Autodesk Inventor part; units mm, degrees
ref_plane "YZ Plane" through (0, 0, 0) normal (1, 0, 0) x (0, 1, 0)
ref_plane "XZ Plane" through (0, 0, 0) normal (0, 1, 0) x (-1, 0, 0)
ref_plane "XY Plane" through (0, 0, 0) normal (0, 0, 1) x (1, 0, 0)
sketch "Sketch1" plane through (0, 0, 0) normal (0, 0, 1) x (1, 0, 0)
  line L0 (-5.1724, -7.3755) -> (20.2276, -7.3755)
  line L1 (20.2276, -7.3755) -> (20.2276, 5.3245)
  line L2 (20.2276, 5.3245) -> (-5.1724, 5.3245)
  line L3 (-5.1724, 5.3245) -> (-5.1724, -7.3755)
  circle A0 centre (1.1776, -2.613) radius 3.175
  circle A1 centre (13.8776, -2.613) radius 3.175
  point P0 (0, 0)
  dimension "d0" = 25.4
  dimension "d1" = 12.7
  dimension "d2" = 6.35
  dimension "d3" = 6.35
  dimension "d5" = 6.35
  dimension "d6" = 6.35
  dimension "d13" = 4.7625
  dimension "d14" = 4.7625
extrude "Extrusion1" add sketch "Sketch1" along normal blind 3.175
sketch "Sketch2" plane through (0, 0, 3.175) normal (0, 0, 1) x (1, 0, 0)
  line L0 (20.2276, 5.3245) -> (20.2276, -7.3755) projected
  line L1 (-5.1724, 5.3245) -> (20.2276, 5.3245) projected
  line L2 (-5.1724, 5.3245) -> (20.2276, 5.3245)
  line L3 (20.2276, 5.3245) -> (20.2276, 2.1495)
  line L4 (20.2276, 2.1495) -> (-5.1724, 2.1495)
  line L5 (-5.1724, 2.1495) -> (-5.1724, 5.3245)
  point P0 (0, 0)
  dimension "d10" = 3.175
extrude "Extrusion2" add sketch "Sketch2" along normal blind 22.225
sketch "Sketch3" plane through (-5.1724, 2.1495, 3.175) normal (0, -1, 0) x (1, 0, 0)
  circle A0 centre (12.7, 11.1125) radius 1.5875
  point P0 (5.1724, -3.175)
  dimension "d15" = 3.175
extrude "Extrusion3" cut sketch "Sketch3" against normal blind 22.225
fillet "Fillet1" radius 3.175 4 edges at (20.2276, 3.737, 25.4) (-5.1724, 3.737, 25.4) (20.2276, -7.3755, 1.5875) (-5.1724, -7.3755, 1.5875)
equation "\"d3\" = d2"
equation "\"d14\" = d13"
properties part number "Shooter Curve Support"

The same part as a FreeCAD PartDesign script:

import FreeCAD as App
import Part
import Sketcher

V = App.Vector
Q = App.Units.Quantity


def edges_at(feature, points):
    """Names of the edges that pass closest to the given points."""
    edges = feature.Shape.Edges
    near = lambda p: min(range(len(edges)), key=lambda i: edges[i].distToShape(Part.Vertex(*p))[0])
    return sorted({f"Edge{near(p) + 1}" for p in points})

doc = App.newDocument("Part")
body = doc.addObject("PartDesign::Body", "Body")

# Sketch on XY plane
sketch1 = body.newObject("Sketcher::SketchObject", "Sketch")
sketch1.AttachmentSupport = (doc.getObject("XY_Plane"), [""])
sketch1.MapMode = "FlatFace"
sketch1.addGeometry([
    Part.LineSegment(V(-5.2, 5.3, 0), V(-5.2, -7.4, 0)),  # 0
    Part.LineSegment(V(-5.2, -7.4, 0), V(20.2, -7.4, 0)),  # 1
    Part.LineSegment(V(20.2, -7.4, 0), V(20.2, 5.3, 0)),  # 2
    Part.LineSegment(V(20.2, 5.3, 0), V(-5.2, 5.3, 0)),  # 3
    Part.Circle(V(1.2, -2.6, 0), V(0, 0, 1), 3.2),  # 4
    Part.Circle(V(13.9, -2.6, 0), V(0, 0, 1), 3.2),  # 5
], False)
sketch1.addConstraint([
    Sketcher.Constraint("Coincident", 0, 2, 1, 1),
    Sketcher.Constraint("Coincident", 1, 2, 2, 1),
    Sketcher.Constraint("Coincident", 2, 2, 3, 1),
    Sketcher.Constraint("Coincident", 3, 2, 0, 1),
    Sketcher.Constraint("Vertical", 0),
    Sketcher.Constraint("Horizontal", 1),
    Sketcher.Constraint("Vertical", 2),
    Sketcher.Constraint("Horizontal", 3),
    Sketcher.Constraint("Equal", 4, 5),
    Sketcher.Constraint("Horizontal", 4, 3, 5, 3),
    Sketcher.Constraint("Diameter", 4, Q("0.25 in")),
    Sketcher.Constraint("DistanceX", 1, 1, 1, 2, Q("1 in")),
    Sketcher.Constraint("DistanceY", 0, 2, 0, 1, Q("0.5 in")),
    Sketcher.Constraint("DistanceX", 4, 3, 5, 3, Q("0.5 in")),
    Sketcher.Constraint("DistanceX", 0, 2, 4, 3, Q("0.25 in")),
    Sketcher.Constraint("DistanceY", 0, 2, 4, 3, Q("0.1875 in")),
    Sketcher.Constraint("DistanceX", -1, 1, 4, 3, 1.1776),
    Sketcher.Constraint("DistanceY", 4, 3, -1, 1, 2.613),
])
pad1 = body.newObject("PartDesign::Pad", "Pad")
pad1.Profile = sketch1
pad1.Length = Q("0.125 in")

# Sketch on XY plane
sketch2 = body.newObject("Sketcher::SketchObject", "Sketch001")
sketch2.AttachmentSupport = (doc.getObject("XY_Plane"), [""])
sketch2.MapMode = "FlatFace"
sketch2.AttachmentOffset = App.Placement(V(0, 0, 0.125 * 25.4), App.Rotation())
sketch2.addGeometry([
    Part.LineSegment(V(20.2, 2.1, 0), V(20.2, 5.3, 0)),
    Part.LineSegment(V(20.2, 5.3, 0), V(-5.2, 5.3, 0)),
    Part.LineSegment(V(-5.2, 5.3, 0), V(-5.2, 2.1, 0)),
    Part.LineSegment(V(-5.2, 2.1, 0), V(20.2, 2.1, 0)),
], False)
sketch2.addConstraint([
    Sketcher.Constraint("Coincident", 0, 2, 1, 1),
    Sketcher.Constraint("Coincident", 1, 2, 2, 1),
    Sketcher.Constraint("Coincident", 2, 2, 3, 1),
    Sketcher.Constraint("Coincident", 3, 2, 0, 1),
    Sketcher.Constraint("Vertical", 0),
    Sketcher.Constraint("Horizontal", 1),
    Sketcher.Constraint("Vertical", 2),
    Sketcher.Constraint("Horizontal", 3),
    Sketcher.Constraint("DistanceX", 1, 2, 1, 1, Q("1 in")),
    Sketcher.Constraint("DistanceY", 0, 1, 0, 2, Q("0.125 in")),
    Sketcher.Constraint("DistanceX", -1, 1, 0, 2, 20.2276),
    Sketcher.Constraint("DistanceY", -1, 1, 0, 2, 5.3245),
])
pad2 = body.newObject("PartDesign::Pad", "Pad001")
pad2.Profile = sketch2
pad2.Length = Q("0.875 in")

# Sketch on XZ plane
sketch3 = body.newObject("Sketcher::SketchObject", "Sketch002")
sketch3.AttachmentSupport = (doc.getObject("XZ_Plane"), [""])
sketch3.MapMode = "FlatFace"
sketch3.AttachmentOffset = App.Placement(V(0, 0, -2.1495), App.Rotation())
sketch3.addGeometry(Part.Circle(V(7.5, 14.3, 0), V(0, 0, 1), 1.6), False)
sketch3.addConstraint([
    Sketcher.Constraint("Diameter", 0, Q("0.125 in")),
    Sketcher.Constraint("DistanceY", -1, 1, 0, 3, Q("0.5625 in")),
    Sketcher.Constraint("DistanceX", -1, 1, 0, 3, 7.5276),
])
pocket1 = body.newObject("PartDesign::Pocket", "Pocket")
pocket1.Profile = sketch3
pocket1.Length = Q("0.875 in")
doc.recompute()

fillet = body.newObject("PartDesign::Fillet", "Fillet")
fillet.Base = (pocket1, edges_at(pocket1, [
    (20.228, 3.737, 25.4),
    (-5.172, 3.737, 25.4),
    (20.228, -7.375, 1.587),
    (-5.172, -7.375, 1.587),
]))
fillet.Radius = Q("0.125 in")

doc.recompute()
